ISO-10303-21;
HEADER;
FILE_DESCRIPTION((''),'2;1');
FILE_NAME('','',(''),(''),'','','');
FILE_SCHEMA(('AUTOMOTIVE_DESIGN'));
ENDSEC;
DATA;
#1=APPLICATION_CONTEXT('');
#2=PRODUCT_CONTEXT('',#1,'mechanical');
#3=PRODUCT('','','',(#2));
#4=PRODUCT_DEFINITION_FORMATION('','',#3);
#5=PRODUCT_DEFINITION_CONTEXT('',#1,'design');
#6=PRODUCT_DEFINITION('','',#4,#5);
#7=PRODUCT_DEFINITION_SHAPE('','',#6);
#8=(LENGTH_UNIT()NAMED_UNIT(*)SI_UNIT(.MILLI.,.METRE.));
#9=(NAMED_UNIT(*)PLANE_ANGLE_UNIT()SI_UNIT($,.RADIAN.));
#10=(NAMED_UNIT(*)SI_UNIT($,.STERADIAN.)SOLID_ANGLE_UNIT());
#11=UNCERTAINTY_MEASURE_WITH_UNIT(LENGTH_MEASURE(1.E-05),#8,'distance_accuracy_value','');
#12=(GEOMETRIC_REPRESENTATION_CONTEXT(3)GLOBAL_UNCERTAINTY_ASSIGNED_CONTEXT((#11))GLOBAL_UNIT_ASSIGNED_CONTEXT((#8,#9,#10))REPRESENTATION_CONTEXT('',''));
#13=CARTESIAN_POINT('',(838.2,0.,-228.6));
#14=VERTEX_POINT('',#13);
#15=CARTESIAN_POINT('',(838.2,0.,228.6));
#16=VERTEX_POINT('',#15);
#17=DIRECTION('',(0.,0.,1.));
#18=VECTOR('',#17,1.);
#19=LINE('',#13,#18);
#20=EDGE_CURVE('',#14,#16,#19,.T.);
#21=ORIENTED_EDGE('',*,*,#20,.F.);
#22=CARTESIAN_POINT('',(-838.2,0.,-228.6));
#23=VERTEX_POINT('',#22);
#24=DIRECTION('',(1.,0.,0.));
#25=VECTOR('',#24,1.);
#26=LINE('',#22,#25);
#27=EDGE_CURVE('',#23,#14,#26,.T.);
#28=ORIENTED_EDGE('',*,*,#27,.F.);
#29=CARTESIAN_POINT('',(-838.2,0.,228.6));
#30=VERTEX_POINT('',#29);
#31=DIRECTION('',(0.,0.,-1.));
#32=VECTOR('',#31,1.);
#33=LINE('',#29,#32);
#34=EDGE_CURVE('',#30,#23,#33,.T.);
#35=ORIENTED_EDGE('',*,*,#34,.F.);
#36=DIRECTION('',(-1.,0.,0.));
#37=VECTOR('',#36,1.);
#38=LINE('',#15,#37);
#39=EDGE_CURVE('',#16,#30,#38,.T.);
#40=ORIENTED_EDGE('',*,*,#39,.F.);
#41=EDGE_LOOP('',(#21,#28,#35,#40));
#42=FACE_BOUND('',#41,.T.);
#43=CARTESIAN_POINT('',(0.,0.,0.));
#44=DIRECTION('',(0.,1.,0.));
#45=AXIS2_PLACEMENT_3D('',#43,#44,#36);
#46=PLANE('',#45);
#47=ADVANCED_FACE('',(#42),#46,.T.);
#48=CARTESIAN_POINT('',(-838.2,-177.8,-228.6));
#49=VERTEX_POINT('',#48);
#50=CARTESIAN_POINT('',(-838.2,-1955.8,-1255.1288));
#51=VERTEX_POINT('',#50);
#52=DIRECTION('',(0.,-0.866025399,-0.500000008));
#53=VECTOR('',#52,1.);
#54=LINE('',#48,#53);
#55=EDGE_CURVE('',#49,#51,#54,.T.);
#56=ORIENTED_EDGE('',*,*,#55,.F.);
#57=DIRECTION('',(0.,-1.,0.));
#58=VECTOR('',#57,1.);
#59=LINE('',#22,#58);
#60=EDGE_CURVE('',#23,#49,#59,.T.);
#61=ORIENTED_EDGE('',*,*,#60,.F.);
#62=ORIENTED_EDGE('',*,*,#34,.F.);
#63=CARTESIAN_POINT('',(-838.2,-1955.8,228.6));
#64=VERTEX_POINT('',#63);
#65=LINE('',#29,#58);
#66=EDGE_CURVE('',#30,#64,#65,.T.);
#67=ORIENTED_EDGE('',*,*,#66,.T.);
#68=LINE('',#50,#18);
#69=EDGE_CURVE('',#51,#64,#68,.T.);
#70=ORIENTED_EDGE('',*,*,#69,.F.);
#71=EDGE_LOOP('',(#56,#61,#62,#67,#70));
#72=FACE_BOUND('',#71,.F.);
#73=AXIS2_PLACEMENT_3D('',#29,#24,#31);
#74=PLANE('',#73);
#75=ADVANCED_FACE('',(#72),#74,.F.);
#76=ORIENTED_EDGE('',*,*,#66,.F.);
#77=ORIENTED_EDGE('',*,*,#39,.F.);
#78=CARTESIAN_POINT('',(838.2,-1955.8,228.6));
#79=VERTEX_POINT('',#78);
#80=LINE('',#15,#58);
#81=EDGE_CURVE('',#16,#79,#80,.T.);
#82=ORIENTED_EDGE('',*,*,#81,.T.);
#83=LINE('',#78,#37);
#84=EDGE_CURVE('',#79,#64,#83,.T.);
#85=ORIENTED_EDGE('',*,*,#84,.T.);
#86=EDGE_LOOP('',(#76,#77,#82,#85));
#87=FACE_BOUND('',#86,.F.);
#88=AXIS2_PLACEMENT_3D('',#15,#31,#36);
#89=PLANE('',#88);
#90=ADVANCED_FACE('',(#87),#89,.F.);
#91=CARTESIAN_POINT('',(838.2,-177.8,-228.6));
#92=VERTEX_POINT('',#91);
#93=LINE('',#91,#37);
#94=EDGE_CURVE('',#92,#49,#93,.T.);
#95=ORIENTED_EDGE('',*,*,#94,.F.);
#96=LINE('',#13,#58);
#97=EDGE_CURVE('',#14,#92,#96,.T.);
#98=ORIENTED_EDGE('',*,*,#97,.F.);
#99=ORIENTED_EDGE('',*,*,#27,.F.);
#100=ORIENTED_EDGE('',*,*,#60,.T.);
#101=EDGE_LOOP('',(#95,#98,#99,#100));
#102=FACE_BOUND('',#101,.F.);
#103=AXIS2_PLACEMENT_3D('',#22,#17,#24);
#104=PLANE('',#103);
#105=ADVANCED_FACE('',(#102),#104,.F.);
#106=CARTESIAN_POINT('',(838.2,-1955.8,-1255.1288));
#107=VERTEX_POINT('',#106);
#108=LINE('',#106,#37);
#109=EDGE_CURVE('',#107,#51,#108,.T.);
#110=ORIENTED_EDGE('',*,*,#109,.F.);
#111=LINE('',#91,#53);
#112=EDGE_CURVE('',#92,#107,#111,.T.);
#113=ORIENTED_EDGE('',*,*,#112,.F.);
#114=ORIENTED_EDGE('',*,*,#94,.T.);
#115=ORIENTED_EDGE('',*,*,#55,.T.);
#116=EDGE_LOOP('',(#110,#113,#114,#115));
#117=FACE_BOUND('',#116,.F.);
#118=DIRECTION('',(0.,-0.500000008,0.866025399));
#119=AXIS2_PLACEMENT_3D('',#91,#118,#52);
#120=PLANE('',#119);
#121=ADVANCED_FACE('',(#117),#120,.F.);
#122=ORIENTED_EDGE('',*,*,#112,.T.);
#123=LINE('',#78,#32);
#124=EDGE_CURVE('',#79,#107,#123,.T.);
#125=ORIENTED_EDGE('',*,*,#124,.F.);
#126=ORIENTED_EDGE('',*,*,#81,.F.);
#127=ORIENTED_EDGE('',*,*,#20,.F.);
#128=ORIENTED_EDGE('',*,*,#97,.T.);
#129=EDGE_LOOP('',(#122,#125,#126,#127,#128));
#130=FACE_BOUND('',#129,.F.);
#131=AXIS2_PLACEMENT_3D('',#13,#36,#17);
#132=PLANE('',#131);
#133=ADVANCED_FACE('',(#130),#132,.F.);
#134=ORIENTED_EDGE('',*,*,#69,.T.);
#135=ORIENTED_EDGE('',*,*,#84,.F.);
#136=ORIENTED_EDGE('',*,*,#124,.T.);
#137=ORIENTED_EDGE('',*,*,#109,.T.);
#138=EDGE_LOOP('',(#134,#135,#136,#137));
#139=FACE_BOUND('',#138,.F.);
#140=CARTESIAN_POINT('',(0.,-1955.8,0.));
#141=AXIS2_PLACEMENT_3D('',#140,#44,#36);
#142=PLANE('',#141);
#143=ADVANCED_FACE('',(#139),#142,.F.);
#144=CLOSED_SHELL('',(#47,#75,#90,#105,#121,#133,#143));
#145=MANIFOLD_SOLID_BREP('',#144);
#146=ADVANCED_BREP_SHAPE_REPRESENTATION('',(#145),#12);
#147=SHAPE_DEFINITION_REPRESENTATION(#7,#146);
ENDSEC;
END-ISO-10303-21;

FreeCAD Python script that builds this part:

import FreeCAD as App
import Part
import Sketcher
Q = App.Units.Quantity


def add_polygon(sketch, points):
    """Adds a closed chain of lines whose ends are joined by coincident constraints."""
    first, n = sketch.GeometryCount, len(points)
    for a, b in zip(points, points[1:] + points[:1]):
        sketch.addGeometry(Part.LineSegment(App.Vector(*a, 0), App.Vector(*b, 0)), False)
    for i in range(n):
        sketch.addConstraint(Sketcher.Constraint("Coincident", first + i, 2, first + (i + 1) % n, 1))

doc = App.newDocument("Part")
params = doc.addObject("Spreadsheet::Sheet", "Params")
for row, (alias, value) in enumerate([
    ("sketch1_width", "66 in"),
    ("sketch1_height", "18 in"),
    ("pad1_length", "77 in"),
    ("sketch2_width", "70 in"),
    ("pad2_length", "66 in"),
], start=1):
    params.set(f"A{row}", alias)
    params.set(f"B{row}", "=" + value)
    params.setAlias(f"B{row}", alias)

body = doc.addObject("PartDesign::Body", "Body")

# Sketch on XZ plane
sketch1 = body.newObject("Sketcher::SketchObject", "Sketch")
sketch1.AttachmentSupport = (doc.getObject("XZ_Plane"), [""])
sketch1.MapMode = "FlatFace"
add_polygon(sketch1, [(-838, 229), (838, 229), (838, -229), (-838, -229)])  # lines 0-3
sketch1.addConstraint([
    Sketcher.Constraint("Horizontal", 0),
    Sketcher.Constraint("Vertical", 1),
    Sketcher.Constraint("Horizontal", 2),
    Sketcher.Constraint("Vertical", 3),
    Sketcher.Constraint("Symmetric", 0, 2, 2, 2, -1, 1),
    Sketcher.Constraint("DistanceX", 0, 1, 0, 2, Q("66 in")),
    Sketcher.Constraint("DistanceY", 1, 2, 1, 1, Q("18 in")),
])
sketch1.setExpression("Constraints[9]", "Params.sketch1_width")
sketch1.setExpression("Constraints[10]", "Params.sketch1_height")
pad1 = body.newObject("PartDesign::Pad", "Pad")
pad1.Profile = sketch1
pad1.setExpression("Length", "Params.pad1_length")

# Sketch on YZ plane
sketch2 = body.newObject("Sketcher::SketchObject", "Sketch001")
sketch2.AttachmentSupport = (doc.getObject("YZ_Plane"), [""])
sketch2.MapMode = "FlatFace"
sketch2.AttachmentOffset = App.Placement(App.Vector(0, 0, 33 * 25.4), App.Rotation())
add_polygon(sketch2, [(-1956, -1255), (-178, -229), (-1956, -229)])  # lines 0-2
sketch2.addConstraint([
    Sketcher.Constraint("Horizontal", 1),
    Sketcher.Constraint("Vertical", 2),
    Sketcher.Constraint("DistanceX", 0, 2, -1, 1, Q("7 in")),
    Sketcher.Constraint("Angle", 0, Q("30 deg")),
    Sketcher.Constraint("DistanceX", 1, 2, 1, 1, Q("70 in")),
    Sketcher.Constraint("DistanceY", 0, 2, -1, 1, Q("9 in")),
])
sketch2.setExpression("Constraints[7]", "Params.sketch2_width")
pad2 = body.newObject("PartDesign::Pad", "Pad001")
pad2.Profile = sketch2
pad2.setExpression("Length", "Params.pad2_length")
pad2.Reversed = True

doc.recompute()
